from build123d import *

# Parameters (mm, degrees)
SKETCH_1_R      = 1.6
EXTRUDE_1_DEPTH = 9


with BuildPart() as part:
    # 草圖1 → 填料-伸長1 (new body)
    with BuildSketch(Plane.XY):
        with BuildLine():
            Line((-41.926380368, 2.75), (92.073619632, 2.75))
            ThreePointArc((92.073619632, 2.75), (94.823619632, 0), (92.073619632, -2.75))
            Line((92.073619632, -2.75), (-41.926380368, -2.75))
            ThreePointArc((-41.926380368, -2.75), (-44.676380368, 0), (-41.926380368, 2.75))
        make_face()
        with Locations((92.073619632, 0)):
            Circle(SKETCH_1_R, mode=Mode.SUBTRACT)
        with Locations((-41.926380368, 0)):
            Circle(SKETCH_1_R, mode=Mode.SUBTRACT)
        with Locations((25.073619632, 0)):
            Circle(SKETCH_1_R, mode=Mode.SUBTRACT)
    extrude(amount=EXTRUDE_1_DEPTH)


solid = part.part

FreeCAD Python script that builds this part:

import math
import FreeCAD as App
import Part
import Sketcher

V = App.Vector
Q = App.Units.Quantity

doc = App.newDocument("Part")
body = doc.addObject("PartDesign::Body", "Body")

# Sketch on XY plane
sketch1 = body.newObject("Sketcher::SketchObject", "Sketch")
sketch1.AttachmentSupport = (doc.getObject("XY_Plane"), [""])
sketch1.MapMode = "FlatFace"
sketch1.addGeometry(Part.LineSegment(V(92.1, 2.8, 0), V(-41.9, 2.8, 0)), False)
sketch1.addGeometry(Part.ArcOfCircle(Part.Circle(V(-41.9, 0, 0), V(0, 0, 1), 2.8), math.radians(90), math.radians(270)), False)
sketch1.addGeometry(Part.LineSegment(V(-41.9, -2.8, 0), V(92.1, -2.8, 0)), False)
sketch1.addGeometry(Part.ArcOfCircle(Part.Circle(V(92.1, 0, 0), V(0, 0, 1), 2.8), math.radians(-90), math.radians(90)), False)
sketch1.addGeometry(Part.Circle(V(92.1, 0, 0), V(0, 0, 1), 1.6), False)
sketch1.addGeometry(Part.Circle(V(25.1, 0, 0), V(0, 0, 1), 1.6), False)
sketch1.addGeometry(Part.Circle(V(-41.9, 0, 0), V(0, 0, 1), 1.6), False)
sketch1.addConstraint(Sketcher.Constraint("Tangent", 0, 2, 1, 1))
sketch1.addConstraint(Sketcher.Constraint("Tangent", 1, 2, 2, 1))
sketch1.addConstraint(Sketcher.Constraint("Tangent", 2, 2, 3, 1))
sketch1.addConstraint(Sketcher.Constraint("Tangent", 3, 2, 0, 1))
sketch1.addConstraint(Sketcher.Constraint("Horizontal", 0))
sketch1.addConstraint(Sketcher.Constraint("Horizontal", 2))
sketch1.addConstraint(Sketcher.Constraint("Coincident", 4, 3, 3, 3))
sketch1.addConstraint(Sketcher.Constraint("Coincident", 6, 3, 1, 3))
sketch1.addConstraint(Sketcher.Constraint("Equal", 4, 5))
sketch1.addConstraint(Sketcher.Constraint("Equal", 5, 6))
sketch1.addConstraint(Sketcher.Constraint("PointOnObject", 1, 3, -1))
sketch1.addConstraint(Sketcher.Constraint("PointOnObject", 5, 3, -1))
sketch1.addConstraint(Sketcher.Constraint("Diameter", 4, Q("3.2 mm")))
sketch1.addConstraint(Sketcher.Constraint("DistanceX", 0, 2, 0, 1, Q("134 mm")))
sketch1.addConstraint(Sketcher.Constraint("Radius", 1, Q("2.75 mm")))
sketch1.addConstraint(Sketcher.Constraint("DistanceX", 1, 3, 5, 3, Q("67 mm")))
sketch1.addConstraint(Sketcher.Constraint("DistanceX", 1, 3, -1, 1, Q("41.92638 mm")))
pad1 = body.newObject("PartDesign::Pad", "Pad")
pad1.Profile = sketch1
pad1.Length = 9

doc.recompute()
